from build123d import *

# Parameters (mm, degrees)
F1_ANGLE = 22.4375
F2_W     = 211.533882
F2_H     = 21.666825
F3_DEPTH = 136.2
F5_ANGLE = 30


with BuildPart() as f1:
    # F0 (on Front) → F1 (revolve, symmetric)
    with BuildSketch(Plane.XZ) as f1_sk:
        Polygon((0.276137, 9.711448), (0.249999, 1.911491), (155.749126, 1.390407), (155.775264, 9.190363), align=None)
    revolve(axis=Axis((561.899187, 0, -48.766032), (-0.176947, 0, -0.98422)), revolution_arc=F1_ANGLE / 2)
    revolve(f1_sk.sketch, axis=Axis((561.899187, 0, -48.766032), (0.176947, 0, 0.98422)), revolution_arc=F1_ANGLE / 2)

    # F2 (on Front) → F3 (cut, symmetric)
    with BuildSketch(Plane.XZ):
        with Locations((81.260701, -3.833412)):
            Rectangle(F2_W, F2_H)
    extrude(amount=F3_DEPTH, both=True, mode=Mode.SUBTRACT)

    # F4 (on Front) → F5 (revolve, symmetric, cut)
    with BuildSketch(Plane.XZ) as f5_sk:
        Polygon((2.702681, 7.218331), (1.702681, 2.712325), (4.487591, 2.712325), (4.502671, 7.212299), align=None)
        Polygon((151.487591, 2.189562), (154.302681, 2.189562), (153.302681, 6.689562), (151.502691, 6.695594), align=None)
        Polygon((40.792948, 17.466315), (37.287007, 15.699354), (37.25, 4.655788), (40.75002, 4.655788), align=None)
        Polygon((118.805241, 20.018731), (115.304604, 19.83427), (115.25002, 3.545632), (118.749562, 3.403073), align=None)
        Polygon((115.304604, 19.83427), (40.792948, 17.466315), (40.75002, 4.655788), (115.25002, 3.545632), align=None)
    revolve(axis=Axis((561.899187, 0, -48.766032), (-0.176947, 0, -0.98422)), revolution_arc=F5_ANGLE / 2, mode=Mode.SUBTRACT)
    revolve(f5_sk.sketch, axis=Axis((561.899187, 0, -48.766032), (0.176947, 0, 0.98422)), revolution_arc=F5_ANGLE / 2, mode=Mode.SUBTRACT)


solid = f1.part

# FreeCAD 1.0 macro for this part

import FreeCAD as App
import Part
import Sketcher
from FreeCAD import Vector
Q = App.Units.Quantity

doc = App.newDocument("Part")
body = doc.addObject("PartDesign::Body", "Body")
body.AllowCompound = True

# Sketch on XZ plane
sketch1 = doc.addObject("Sketcher::SketchObject", "Sketch")
body.addObject(sketch1)
sketch1.AttachmentSupport = (doc.XZ_Plane, [""])
sketch1.MapMode = "FlatFace"
sketch1.addGeometry([
    Part.LineSegment(Vector(0.276137, 9.711448, 0), Vector(0.249999, 1.911491, 0)),
    Part.LineSegment(Vector(0.249999, 1.911491, 0), Vector(155.749126, 1.390407, 0)),
    Part.LineSegment(Vector(155.749126, 1.390407, 0), Vector(155.775264, 9.190363, 0)),
    Part.LineSegment(Vector(155.775264, 9.190363, 0), Vector(0.276137, 9.711448, 0)),
], False)
sketch1.addGeometry(Part.LineSegment(Vector(559.27673, -63.352741, 0), Vector(553.139542, -97.489198, 0)), True)  # axis
sketch1.addConstraint([
    Sketcher.Constraint("Coincident", 0, 2, 1, 1),
    Sketcher.Constraint("Coincident", 1, 2, 2, 1),
    Sketcher.Constraint("Coincident", 2, 2, 3, 1),
    Sketcher.Constraint("Coincident", 3, 2, 0, 1),
    Sketcher.Constraint("Perpendicular", 0, 1),
    Sketcher.Constraint("Perpendicular", 1, 2),
    Sketcher.Constraint("Perpendicular", 2, 3),
    Sketcher.Constraint("Distance", 0, Q("7.800001 mm")),
    Sketcher.Constraint("Distance", 1, Q("155.5 mm")),
    Sketcher.Constraint("DistanceX", -1, 1, 0, 2, Q("0.249999 mm")),
    Sketcher.Constraint("DistanceY", -1, 1, 0, 2, Q("1.911491 mm")),
    Sketcher.Constraint("DistanceX", -1, 1, 4, 1, Q("559.27673 mm")),
    Sketcher.Constraint("DistanceY", 4, 1, -1, 1, Q("63.352741 mm")),
    Sketcher.Constraint("DistanceX", -1, 1, 4, 2, Q("553.139542 mm")),
    Sketcher.Constraint("DistanceX", 1, 2, 2, 2, Q("0.026138 mm")),
    Sketcher.Constraint("DistanceY", 4, 2, 2, 2, Q("106.679561 mm")),
])
revolution = doc.addObject("PartDesign::Revolution", "Revolution")
body.addObject(revolution)
revolution.Profile = sketch1
revolution.ReferenceAxis = (sketch1, ["Axis0"])
revolution.Angle = 11.21875

# Sketch on XZ plane
sketch2 = doc.addObject("Sketcher::SketchObject", "Sketch001")
body.addObject(sketch2)
sketch2.AttachmentSupport = (doc.XZ_Plane, [""])
sketch2.MapMode = "FlatFace"
sketch2.addGeometry([
    Part.LineSegment(Vector(0.276137, 9.711448, 0), Vector(0.249999, 1.911491, 0)),
    Part.LineSegment(Vector(0.249999, 1.911491, 0), Vector(155.749126, 1.390407, 0)),
    Part.LineSegment(Vector(155.749126, 1.390407, 0), Vector(155.775264, 9.190363, 0)),
    Part.LineSegment(Vector(155.775264, 9.190363, 0), Vector(0.276137, 9.711448, 0)),
], False)
sketch2.addGeometry(Part.LineSegment(Vector(553.139542, -97.489198, 0), Vector(559.27673, -63.352741, 0)), True)  # axis
sketch2.addConstraint([
    Sketcher.Constraint("Coincident", 0, 2, 1, 1),
    Sketcher.Constraint("Coincident", 1, 2, 2, 1),
    Sketcher.Constraint("Coincident", 2, 2, 3, 1),
    Sketcher.Constraint("Coincident", 3, 2, 0, 1),
    Sketcher.Constraint("Perpendicular", 0, 1),
    Sketcher.Constraint("Perpendicular", 1, 2),
    Sketcher.Constraint("Perpendicular", 2, 3),
    Sketcher.Constraint("Distance", 0, Q("7.800001 mm")),
    Sketcher.Constraint("Distance", 1, Q("155.5 mm")),
    Sketcher.Constraint("DistanceX", -1, 1, 0, 2, Q("0.249999 mm")),
    Sketcher.Constraint("DistanceY", -1, 1, 0, 2, Q("1.911491 mm")),
    Sketcher.Constraint("DistanceX", -1, 1, 4, 1, Q("553.139542 mm")),
    Sketcher.Constraint("DistanceX", -1, 1, 4, 2, Q("559.27673 mm")),
    Sketcher.Constraint("DistanceY", 4, 2, -1, 1, Q("63.352741 mm")),
    Sketcher.Constraint("DistanceX", 1, 2, 2, 2, Q("0.026138 mm")),
    Sketcher.Constraint("DistanceY", 4, 1, 2, 2, Q("106.679561 mm")),
])
revolution2 = doc.addObject("PartDesign::Revolution", "Revolution001")
body.addObject(revolution2)
revolution2.Profile = sketch2
revolution2.ReferenceAxis = (sketch2, ["Axis0"])
revolution2.Angle = 11.21875

# Sketch on XZ plane
sketch3 = doc.addObject("Sketcher::SketchObject", "Sketch002")
body.addObject(sketch3)
sketch3.AttachmentSupport = (doc.XZ_Plane, [""])
sketch3.MapMode = "FlatFace"
sketch3.addGeometry([
    Part.LineSegment(Vector(-24.50624, 7, 0), Vector(-24.50624, -14.666825, 0)),
    Part.LineSegment(Vector(-24.50624, -14.666825, 0), Vector(187.027642, -14.666825, 0)),
    Part.LineSegment(Vector(187.027642, -14.666825, 0), Vector(187.027642, 7, 0)),
    Part.LineSegment(Vector(187.027642, 7, 0), Vector(-24.50624, 7, 0)),
], False)
sketch3.addConstraint([
    Sketcher.Constraint("Coincident", 0, 2, 1, 1),
    Sketcher.Constraint("Coincident", 1, 2, 2, 1),
    Sketcher.Constraint("Coincident", 2, 2, 3, 1),
    Sketcher.Constraint("Coincident", 3, 2, 0, 1),
    Sketcher.Constraint("Vertical", 0),
    Sketcher.Constraint("Horizontal", 1),
    Sketcher.Constraint("Vertical", 2),
    Sketcher.Constraint("Horizontal", 3),
    Sketcher.Constraint("DistanceY", -1, 1, 2, 2, Q("7 mm")),
    Sketcher.Constraint("DistanceX", 1, 1, 1, 2, Q("211.533882 mm")),
    Sketcher.Constraint("DistanceY", 0, 2, 0, 1, Q("21.666825 mm")),
    Sketcher.Constraint("DistanceX", 0, 2, -1, 1, Q("24.50624 mm")),
])
pocket1 = doc.addObject("PartDesign::Pocket", "Pocket")
body.addObject(pocket1)
pocket1.Profile = sketch3
pocket1.Length = 272.4
pocket1.Midplane = True

# Sketch on XZ plane
sketch4 = doc.addObject("Sketcher::SketchObject", "Sketch003")
body.addObject(sketch4)
sketch4.AttachmentSupport = (doc.XZ_Plane, [""])
sketch4.MapMode = "FlatFace"
sketch4.addGeometry([
    Part.LineSegment(Vector(2.702681, 7.218331, 0), Vector(1.702681, 2.712325, 0)),  # 0
    Part.LineSegment(Vector(1.702681, 2.712325, 0), Vector(4.487591, 2.712325, 0)),  # 1
    Part.LineSegment(Vector(4.487591, 2.712325, 0), Vector(4.502671, 7.212299, 0)),  # 2
    Part.LineSegment(Vector(4.502671, 7.212299, 0), Vector(2.702681, 7.218331, 0)),  # 3
    Part.LineSegment(Vector(151.487591, 2.189562, 0), Vector(154.302681, 2.189562, 0)),  # 4
    Part.LineSegment(Vector(154.302681, 2.189562, 0), Vector(153.302681, 6.689562, 0)),  # 5
    Part.LineSegment(Vector(153.302681, 6.689562, 0), Vector(151.502691, 6.695594, 0)),  # 6
    Part.LineSegment(Vector(151.502691, 6.695594, 0), Vector(151.487591, 2.189562, 0)),  # 7
    Part.LineSegment(Vector(40.792948, 17.466315, 0), Vector(37.287007, 15.699354, 0)),  # 8
    Part.LineSegment(Vector(37.287007, 15.699354, 0), Vector(37.25, 4.655788, 0)),  # 9
    Part.LineSegment(Vector(37.25, 4.655788, 0), Vector(40.75002, 4.655788, 0)),  # 10
    Part.LineSegment(Vector(40.75002, 4.655788, 0), Vector(115.25002, 3.545632, 0)),  # 11
    Part.LineSegment(Vector(115.25002, 3.545632, 0), Vector(118.749562, 3.403073, 0)),  # 12
    Part.LineSegment(Vector(118.749562, 3.403073, 0), Vector(118.805241, 20.018731, 0)),  # 13
    Part.LineSegment(Vector(118.805241, 20.018731, 0), Vector(115.304604, 19.83427, 0)),  # 14
    Part.LineSegment(Vector(115.304604, 19.83427, 0), Vector(40.792948, 17.466315, 0)),  # 15
], False)
sketch4.addGeometry(Part.LineSegment(Vector(560.005002, -59.301923, 0), Vector(553.324495, -96.460446, 0)), True)  # axis
sketch4.addConstraint([
    Sketcher.Constraint("Coincident", 0, 2, 1, 1),
    Sketcher.Constraint("Coincident", 1, 2, 2, 1),
    Sketcher.Constraint("Coincident", 2, 2, 3, 1),
    Sketcher.Constraint("Coincident", 3, 2, 0, 1),
    Sketcher.Constraint("Coincident", 4, 2, 5, 1),
    Sketcher.Constraint("Coincident", 5, 2, 6, 1),
    Sketcher.Constraint("Coincident", 6, 2, 7, 1),
    Sketcher.Constraint("Coincident", 7, 2, 4, 1),
    Sketcher.Constraint("Coincident", 8, 2, 9, 1),
    Sketcher.Constraint("Coincident", 9, 2, 10, 1),
    Sketcher.Constraint("Coincident", 10, 2, 11, 1),
    Sketcher.Constraint("Coincident", 11, 2, 12, 1),
    Sketcher.Constraint("Coincident", 12, 2, 13, 1),
    Sketcher.Constraint("Coincident", 13, 2, 14, 1),
    Sketcher.Constraint("Coincident", 14, 2, 15, 1),
    Sketcher.Constraint("Coincident", 15, 2, 8, 1),
    Sketcher.Constraint("Horizontal", 1),
    Sketcher.Constraint("Horizontal", 4),
    Sketcher.Constraint("Horizontal", 10),
    Sketcher.Constraint("Perpendicular", 2, 3),
    Sketcher.Constraint("Parallel", 3, 6),
    Sketcher.Constraint("Perpendicular", 6, 7),
    Sketcher.Constraint("Parallel", 7, 9),
    Sketcher.Constraint("Parallel", 9, 13),
    Sketcher.Constraint("Equal", 3, 6),
    Sketcher.Constraint("DistanceX", 0, 2, 3, 2, Q("1 mm")),
    Sketcher.Constraint("DistanceX", 5, 2, 4, 2, Q("1 mm")),
    Sketcher.Constraint("DistanceX", 1, 2, 7, 2, Q("147 mm")),
    Sketcher.Constraint("Distance", 2, Q("4.499999 mm")),
    Sketcher.Constraint("Distance", 3, Q("1.8 mm")),
    Sketcher.Constraint("DistanceY", 4, 2, 5, 2, Q("4.5 mm")),
    Sketcher.Constraint("DistanceX", 10, 2, 11, 2, Q("74.5 mm")),
    Sketcher.Constraint("DistanceX", -1, 1, 9, 2, Q("37.25 mm")),
    Sketcher.Constraint("DistanceX", 1, 1, 1, 2, Q("2.78491 mm")),
    Sketcher.Constraint("DistanceX", 10, 1, 10, 2, Q("3.50002 mm")),
    Sketcher.Constraint("DistanceY", -1, 1, 2, 2, Q("7.212299 mm")),
    Sketcher.Constraint("DistanceY", 11, 2, 13, 2, Q("16.473099 mm")),
    Sketcher.Constraint("Distance", 9, Q("11.043628 mm")),
    Sketcher.Constraint("Distance", 11, Q("74.508271 mm")),
    Sketcher.Constraint("Distance", 13, Q("16.615751 mm")),
    Sketcher.Constraint("Distance", 16, Q("37.754272 mm")),
    Sketcher.Constraint("DistanceX", -1, 1, 0, 2, Q("1.702681 mm")),
    Sketcher.Constraint("DistanceY", -1, 1, 4, 2, Q("2.189562 mm")),
    Sketcher.Constraint("DistanceY", -1, 1, 9, 2, Q("4.655788 mm")),
    Sketcher.Constraint("DistanceX", -1, 1, 12, 2, Q("118.749562 mm")),
    Sketcher.Constraint("DistanceY", -1, 1, 14, 2, Q("19.83427 mm")),
    Sketcher.Constraint("DistanceX", -1, 1, 15, 2, Q("40.792948 mm")),
    Sketcher.Constraint("DistanceY", 8, 2, 15, 2, Q("1.766961 mm")),
    Sketcher.Constraint("DistanceX", 4, 2, 16, 1, Q("405.702321 mm")),
    Sketcher.Constraint("DistanceY", 16, 2, 4, 2, Q("98.650008 mm")),
    Sketcher.Constraint("Distance", 14, Q("3.505494 mm")),
    Sketcher.Constraint("DistanceY", 16, 1, -1, 1, Q("59.301923 mm")),
])
groove = doc.addObject("PartDesign::Groove", "Groove")
body.addObject(groove)
groove.Profile = sketch4
groove.ReferenceAxis = (sketch4, ["Axis0"])
groove.Angle = 15

# Sketch on XZ plane
sketch5 = doc.addObject("Sketcher::SketchObject", "Sketch004")
body.addObject(sketch5)
sketch5.AttachmentSupport = (doc.XZ_Plane, [""])
sketch5.MapMode = "FlatFace"
sketch5.addGeometry([
    Part.LineSegment(Vector(2.702681, 7.218331, 0), Vector(1.702681, 2.712325, 0)),  # 0
    Part.LineSegment(Vector(1.702681, 2.712325, 0), Vector(4.487591, 2.712325, 0)),  # 1
    Part.LineSegment(Vector(4.487591, 2.712325, 0), Vector(4.502671, 7.212299, 0)),  # 2
    Part.LineSegment(Vector(4.502671, 7.212299, 0), Vector(2.702681, 7.218331, 0)),  # 3
    Part.LineSegment(Vector(151.487591, 2.189562, 0), Vector(154.302681, 2.189562, 0)),  # 4
    Part.LineSegment(Vector(154.302681, 2.189562, 0), Vector(153.302681, 6.689562, 0)),  # 5
    Part.LineSegment(Vector(153.302681, 6.689562, 0), Vector(151.502691, 6.695594, 0)),  # 6
    Part.LineSegment(Vector(151.502691, 6.695594, 0), Vector(151.487591, 2.189562, 0)),  # 7
    Part.LineSegment(Vector(40.792948, 17.466315, 0), Vector(37.287007, 15.699354, 0)),  # 8
    Part.LineSegment(Vector(37.287007, 15.699354, 0), Vector(37.25, 4.655788, 0)),  # 9
    Part.LineSegment(Vector(37.25, 4.655788, 0), Vector(40.75002, 4.655788, 0)),  # 10
    Part.LineSegment(Vector(40.75002, 4.655788, 0), Vector(115.25002, 3.545632, 0)),  # 11
    Part.LineSegment(Vector(115.25002, 3.545632, 0), Vector(118.749562, 3.403073, 0)),  # 12
    Part.LineSegment(Vector(118.749562, 3.403073, 0), Vector(118.805241, 20.018731, 0)),  # 13
    Part.LineSegment(Vector(118.805241, 20.018731, 0), Vector(115.304604, 19.83427, 0)),  # 14
    Part.LineSegment(Vector(115.304604, 19.83427, 0), Vector(40.792948, 17.466315, 0)),  # 15
], False)
sketch5.addGeometry(Part.LineSegment(Vector(553.324495, -96.460446, 0), Vector(560.005002, -59.301923, 0)), True)  # axis
sketch5.addConstraint([
    Sketcher.Constraint("Coincident", 0, 2, 1, 1),
    Sketcher.Constraint("Coincident", 1, 2, 2, 1),
    Sketcher.Constraint("Coincident", 2, 2, 3, 1),
    Sketcher.Constraint("Coincident", 3, 2, 0, 1),
    Sketcher.Constraint("Coincident", 4, 2, 5, 1),
    Sketcher.Constraint("Coincident", 5, 2, 6, 1),
    Sketcher.Constraint("Coincident", 6, 2, 7, 1),
    Sketcher.Constraint("Coincident", 7, 2, 4, 1),
    Sketcher.Constraint("Coincident", 8, 2, 9, 1),
    Sketcher.Constraint("Coincident", 9, 2, 10, 1),
    Sketcher.Constraint("Coincident", 10, 2, 11, 1),
    Sketcher.Constraint("Coincident", 11, 2, 12, 1),
    Sketcher.Constraint("Coincident", 12, 2, 13, 1),
    Sketcher.Constraint("Coincident", 13, 2, 14, 1),
    Sketcher.Constraint("Coincident", 14, 2, 15, 1),
    Sketcher.Constraint("Coincident", 15, 2, 8, 1),
    Sketcher.Constraint("Horizontal", 1),
    Sketcher.Constraint("Horizontal", 4),
    Sketcher.Constraint("Horizontal", 10),
    Sketcher.Constraint("Perpendicular", 2, 3),
    Sketcher.Constraint("Parallel", 3, 6),
    Sketcher.Constraint("Perpendicular", 6, 7),
    Sketcher.Constraint("Parallel", 7, 9),
    Sketcher.Constraint("Parallel", 9, 13),
    Sketcher.Constraint("Equal", 3, 6),
    Sketcher.Constraint("DistanceX", 0, 2, 3, 2, Q("1 mm")),
    Sketcher.Constraint("DistanceX", 5, 2, 4, 2, Q("1 mm")),
    Sketcher.Constraint("DistanceX", 1, 2, 7, 2, Q("147 mm")),
    Sketcher.Constraint("Distance", 2, Q("4.499999 mm")),
    Sketcher.Constraint("Distance", 3, Q("1.8 mm")),
    Sketcher.Constraint("DistanceY", 4, 2, 5, 2, Q("4.5 mm")),
    Sketcher.Constraint("DistanceX", 10, 2, 11, 2, Q("74.5 mm")),
    Sketcher.Constraint("DistanceX", -1, 1, 9, 2, Q("37.25 mm")),
    Sketcher.Constraint("DistanceX", 1, 1, 1, 2, Q("2.78491 mm")),
    Sketcher.Constraint("DistanceX", 10, 1, 10, 2, Q("3.50002 mm")),
    Sketcher.Constraint("DistanceY", -1, 1, 2, 2, Q("7.212299 mm")),
    Sketcher.Constraint("DistanceY", 11, 2, 13, 2, Q("16.473099 mm")),
    Sketcher.Constraint("Distance", 9, Q("11.043628 mm")),
    Sketcher.Constraint("Distance", 11, Q("74.508271 mm")),
    Sketcher.Constraint("Distance", 13, Q("16.615751 mm")),
    Sketcher.Constraint("Distance", 16, Q("37.754272 mm")),
    Sketcher.Constraint("DistanceX", -1, 1, 0, 2, Q("1.702681 mm")),
    Sketcher.Constraint("DistanceY", -1, 1, 4, 2, Q("2.189562 mm")),
    Sketcher.Constraint("DistanceY", -1, 1, 9, 2, Q("4.655788 mm")),
    Sketcher.Constraint("DistanceX", -1, 1, 12, 2, Q("118.749562 mm")),
    Sketcher.Constraint("DistanceY", -1, 1, 14, 2, Q("19.83427 mm")),
    Sketcher.Constraint("DistanceX", -1, 1, 15, 2, Q("40.792948 mm")),
    Sketcher.Constraint("DistanceY", 8, 2, 15, 2, Q("1.766961 mm")),
    Sketcher.Constraint("DistanceY", 16, 1, 4, 2, Q("98.650008 mm")),
    Sketcher.Constraint("DistanceX", 4, 2, 16, 2, Q("405.702321 mm")),
    Sketcher.Constraint("Distance", 14, Q("3.505494 mm")),
    Sketcher.Constraint("DistanceX", -1, 1, 16, 1, Q("553.324495 mm")),
])
groove2 = doc.addObject("PartDesign::Groove", "Groove001")
body.addObject(groove2)
groove2.Profile = sketch5
groove2.ReferenceAxis = (sketch5, ["Axis0"])
groove2.Angle = 15

doc.recompute()
